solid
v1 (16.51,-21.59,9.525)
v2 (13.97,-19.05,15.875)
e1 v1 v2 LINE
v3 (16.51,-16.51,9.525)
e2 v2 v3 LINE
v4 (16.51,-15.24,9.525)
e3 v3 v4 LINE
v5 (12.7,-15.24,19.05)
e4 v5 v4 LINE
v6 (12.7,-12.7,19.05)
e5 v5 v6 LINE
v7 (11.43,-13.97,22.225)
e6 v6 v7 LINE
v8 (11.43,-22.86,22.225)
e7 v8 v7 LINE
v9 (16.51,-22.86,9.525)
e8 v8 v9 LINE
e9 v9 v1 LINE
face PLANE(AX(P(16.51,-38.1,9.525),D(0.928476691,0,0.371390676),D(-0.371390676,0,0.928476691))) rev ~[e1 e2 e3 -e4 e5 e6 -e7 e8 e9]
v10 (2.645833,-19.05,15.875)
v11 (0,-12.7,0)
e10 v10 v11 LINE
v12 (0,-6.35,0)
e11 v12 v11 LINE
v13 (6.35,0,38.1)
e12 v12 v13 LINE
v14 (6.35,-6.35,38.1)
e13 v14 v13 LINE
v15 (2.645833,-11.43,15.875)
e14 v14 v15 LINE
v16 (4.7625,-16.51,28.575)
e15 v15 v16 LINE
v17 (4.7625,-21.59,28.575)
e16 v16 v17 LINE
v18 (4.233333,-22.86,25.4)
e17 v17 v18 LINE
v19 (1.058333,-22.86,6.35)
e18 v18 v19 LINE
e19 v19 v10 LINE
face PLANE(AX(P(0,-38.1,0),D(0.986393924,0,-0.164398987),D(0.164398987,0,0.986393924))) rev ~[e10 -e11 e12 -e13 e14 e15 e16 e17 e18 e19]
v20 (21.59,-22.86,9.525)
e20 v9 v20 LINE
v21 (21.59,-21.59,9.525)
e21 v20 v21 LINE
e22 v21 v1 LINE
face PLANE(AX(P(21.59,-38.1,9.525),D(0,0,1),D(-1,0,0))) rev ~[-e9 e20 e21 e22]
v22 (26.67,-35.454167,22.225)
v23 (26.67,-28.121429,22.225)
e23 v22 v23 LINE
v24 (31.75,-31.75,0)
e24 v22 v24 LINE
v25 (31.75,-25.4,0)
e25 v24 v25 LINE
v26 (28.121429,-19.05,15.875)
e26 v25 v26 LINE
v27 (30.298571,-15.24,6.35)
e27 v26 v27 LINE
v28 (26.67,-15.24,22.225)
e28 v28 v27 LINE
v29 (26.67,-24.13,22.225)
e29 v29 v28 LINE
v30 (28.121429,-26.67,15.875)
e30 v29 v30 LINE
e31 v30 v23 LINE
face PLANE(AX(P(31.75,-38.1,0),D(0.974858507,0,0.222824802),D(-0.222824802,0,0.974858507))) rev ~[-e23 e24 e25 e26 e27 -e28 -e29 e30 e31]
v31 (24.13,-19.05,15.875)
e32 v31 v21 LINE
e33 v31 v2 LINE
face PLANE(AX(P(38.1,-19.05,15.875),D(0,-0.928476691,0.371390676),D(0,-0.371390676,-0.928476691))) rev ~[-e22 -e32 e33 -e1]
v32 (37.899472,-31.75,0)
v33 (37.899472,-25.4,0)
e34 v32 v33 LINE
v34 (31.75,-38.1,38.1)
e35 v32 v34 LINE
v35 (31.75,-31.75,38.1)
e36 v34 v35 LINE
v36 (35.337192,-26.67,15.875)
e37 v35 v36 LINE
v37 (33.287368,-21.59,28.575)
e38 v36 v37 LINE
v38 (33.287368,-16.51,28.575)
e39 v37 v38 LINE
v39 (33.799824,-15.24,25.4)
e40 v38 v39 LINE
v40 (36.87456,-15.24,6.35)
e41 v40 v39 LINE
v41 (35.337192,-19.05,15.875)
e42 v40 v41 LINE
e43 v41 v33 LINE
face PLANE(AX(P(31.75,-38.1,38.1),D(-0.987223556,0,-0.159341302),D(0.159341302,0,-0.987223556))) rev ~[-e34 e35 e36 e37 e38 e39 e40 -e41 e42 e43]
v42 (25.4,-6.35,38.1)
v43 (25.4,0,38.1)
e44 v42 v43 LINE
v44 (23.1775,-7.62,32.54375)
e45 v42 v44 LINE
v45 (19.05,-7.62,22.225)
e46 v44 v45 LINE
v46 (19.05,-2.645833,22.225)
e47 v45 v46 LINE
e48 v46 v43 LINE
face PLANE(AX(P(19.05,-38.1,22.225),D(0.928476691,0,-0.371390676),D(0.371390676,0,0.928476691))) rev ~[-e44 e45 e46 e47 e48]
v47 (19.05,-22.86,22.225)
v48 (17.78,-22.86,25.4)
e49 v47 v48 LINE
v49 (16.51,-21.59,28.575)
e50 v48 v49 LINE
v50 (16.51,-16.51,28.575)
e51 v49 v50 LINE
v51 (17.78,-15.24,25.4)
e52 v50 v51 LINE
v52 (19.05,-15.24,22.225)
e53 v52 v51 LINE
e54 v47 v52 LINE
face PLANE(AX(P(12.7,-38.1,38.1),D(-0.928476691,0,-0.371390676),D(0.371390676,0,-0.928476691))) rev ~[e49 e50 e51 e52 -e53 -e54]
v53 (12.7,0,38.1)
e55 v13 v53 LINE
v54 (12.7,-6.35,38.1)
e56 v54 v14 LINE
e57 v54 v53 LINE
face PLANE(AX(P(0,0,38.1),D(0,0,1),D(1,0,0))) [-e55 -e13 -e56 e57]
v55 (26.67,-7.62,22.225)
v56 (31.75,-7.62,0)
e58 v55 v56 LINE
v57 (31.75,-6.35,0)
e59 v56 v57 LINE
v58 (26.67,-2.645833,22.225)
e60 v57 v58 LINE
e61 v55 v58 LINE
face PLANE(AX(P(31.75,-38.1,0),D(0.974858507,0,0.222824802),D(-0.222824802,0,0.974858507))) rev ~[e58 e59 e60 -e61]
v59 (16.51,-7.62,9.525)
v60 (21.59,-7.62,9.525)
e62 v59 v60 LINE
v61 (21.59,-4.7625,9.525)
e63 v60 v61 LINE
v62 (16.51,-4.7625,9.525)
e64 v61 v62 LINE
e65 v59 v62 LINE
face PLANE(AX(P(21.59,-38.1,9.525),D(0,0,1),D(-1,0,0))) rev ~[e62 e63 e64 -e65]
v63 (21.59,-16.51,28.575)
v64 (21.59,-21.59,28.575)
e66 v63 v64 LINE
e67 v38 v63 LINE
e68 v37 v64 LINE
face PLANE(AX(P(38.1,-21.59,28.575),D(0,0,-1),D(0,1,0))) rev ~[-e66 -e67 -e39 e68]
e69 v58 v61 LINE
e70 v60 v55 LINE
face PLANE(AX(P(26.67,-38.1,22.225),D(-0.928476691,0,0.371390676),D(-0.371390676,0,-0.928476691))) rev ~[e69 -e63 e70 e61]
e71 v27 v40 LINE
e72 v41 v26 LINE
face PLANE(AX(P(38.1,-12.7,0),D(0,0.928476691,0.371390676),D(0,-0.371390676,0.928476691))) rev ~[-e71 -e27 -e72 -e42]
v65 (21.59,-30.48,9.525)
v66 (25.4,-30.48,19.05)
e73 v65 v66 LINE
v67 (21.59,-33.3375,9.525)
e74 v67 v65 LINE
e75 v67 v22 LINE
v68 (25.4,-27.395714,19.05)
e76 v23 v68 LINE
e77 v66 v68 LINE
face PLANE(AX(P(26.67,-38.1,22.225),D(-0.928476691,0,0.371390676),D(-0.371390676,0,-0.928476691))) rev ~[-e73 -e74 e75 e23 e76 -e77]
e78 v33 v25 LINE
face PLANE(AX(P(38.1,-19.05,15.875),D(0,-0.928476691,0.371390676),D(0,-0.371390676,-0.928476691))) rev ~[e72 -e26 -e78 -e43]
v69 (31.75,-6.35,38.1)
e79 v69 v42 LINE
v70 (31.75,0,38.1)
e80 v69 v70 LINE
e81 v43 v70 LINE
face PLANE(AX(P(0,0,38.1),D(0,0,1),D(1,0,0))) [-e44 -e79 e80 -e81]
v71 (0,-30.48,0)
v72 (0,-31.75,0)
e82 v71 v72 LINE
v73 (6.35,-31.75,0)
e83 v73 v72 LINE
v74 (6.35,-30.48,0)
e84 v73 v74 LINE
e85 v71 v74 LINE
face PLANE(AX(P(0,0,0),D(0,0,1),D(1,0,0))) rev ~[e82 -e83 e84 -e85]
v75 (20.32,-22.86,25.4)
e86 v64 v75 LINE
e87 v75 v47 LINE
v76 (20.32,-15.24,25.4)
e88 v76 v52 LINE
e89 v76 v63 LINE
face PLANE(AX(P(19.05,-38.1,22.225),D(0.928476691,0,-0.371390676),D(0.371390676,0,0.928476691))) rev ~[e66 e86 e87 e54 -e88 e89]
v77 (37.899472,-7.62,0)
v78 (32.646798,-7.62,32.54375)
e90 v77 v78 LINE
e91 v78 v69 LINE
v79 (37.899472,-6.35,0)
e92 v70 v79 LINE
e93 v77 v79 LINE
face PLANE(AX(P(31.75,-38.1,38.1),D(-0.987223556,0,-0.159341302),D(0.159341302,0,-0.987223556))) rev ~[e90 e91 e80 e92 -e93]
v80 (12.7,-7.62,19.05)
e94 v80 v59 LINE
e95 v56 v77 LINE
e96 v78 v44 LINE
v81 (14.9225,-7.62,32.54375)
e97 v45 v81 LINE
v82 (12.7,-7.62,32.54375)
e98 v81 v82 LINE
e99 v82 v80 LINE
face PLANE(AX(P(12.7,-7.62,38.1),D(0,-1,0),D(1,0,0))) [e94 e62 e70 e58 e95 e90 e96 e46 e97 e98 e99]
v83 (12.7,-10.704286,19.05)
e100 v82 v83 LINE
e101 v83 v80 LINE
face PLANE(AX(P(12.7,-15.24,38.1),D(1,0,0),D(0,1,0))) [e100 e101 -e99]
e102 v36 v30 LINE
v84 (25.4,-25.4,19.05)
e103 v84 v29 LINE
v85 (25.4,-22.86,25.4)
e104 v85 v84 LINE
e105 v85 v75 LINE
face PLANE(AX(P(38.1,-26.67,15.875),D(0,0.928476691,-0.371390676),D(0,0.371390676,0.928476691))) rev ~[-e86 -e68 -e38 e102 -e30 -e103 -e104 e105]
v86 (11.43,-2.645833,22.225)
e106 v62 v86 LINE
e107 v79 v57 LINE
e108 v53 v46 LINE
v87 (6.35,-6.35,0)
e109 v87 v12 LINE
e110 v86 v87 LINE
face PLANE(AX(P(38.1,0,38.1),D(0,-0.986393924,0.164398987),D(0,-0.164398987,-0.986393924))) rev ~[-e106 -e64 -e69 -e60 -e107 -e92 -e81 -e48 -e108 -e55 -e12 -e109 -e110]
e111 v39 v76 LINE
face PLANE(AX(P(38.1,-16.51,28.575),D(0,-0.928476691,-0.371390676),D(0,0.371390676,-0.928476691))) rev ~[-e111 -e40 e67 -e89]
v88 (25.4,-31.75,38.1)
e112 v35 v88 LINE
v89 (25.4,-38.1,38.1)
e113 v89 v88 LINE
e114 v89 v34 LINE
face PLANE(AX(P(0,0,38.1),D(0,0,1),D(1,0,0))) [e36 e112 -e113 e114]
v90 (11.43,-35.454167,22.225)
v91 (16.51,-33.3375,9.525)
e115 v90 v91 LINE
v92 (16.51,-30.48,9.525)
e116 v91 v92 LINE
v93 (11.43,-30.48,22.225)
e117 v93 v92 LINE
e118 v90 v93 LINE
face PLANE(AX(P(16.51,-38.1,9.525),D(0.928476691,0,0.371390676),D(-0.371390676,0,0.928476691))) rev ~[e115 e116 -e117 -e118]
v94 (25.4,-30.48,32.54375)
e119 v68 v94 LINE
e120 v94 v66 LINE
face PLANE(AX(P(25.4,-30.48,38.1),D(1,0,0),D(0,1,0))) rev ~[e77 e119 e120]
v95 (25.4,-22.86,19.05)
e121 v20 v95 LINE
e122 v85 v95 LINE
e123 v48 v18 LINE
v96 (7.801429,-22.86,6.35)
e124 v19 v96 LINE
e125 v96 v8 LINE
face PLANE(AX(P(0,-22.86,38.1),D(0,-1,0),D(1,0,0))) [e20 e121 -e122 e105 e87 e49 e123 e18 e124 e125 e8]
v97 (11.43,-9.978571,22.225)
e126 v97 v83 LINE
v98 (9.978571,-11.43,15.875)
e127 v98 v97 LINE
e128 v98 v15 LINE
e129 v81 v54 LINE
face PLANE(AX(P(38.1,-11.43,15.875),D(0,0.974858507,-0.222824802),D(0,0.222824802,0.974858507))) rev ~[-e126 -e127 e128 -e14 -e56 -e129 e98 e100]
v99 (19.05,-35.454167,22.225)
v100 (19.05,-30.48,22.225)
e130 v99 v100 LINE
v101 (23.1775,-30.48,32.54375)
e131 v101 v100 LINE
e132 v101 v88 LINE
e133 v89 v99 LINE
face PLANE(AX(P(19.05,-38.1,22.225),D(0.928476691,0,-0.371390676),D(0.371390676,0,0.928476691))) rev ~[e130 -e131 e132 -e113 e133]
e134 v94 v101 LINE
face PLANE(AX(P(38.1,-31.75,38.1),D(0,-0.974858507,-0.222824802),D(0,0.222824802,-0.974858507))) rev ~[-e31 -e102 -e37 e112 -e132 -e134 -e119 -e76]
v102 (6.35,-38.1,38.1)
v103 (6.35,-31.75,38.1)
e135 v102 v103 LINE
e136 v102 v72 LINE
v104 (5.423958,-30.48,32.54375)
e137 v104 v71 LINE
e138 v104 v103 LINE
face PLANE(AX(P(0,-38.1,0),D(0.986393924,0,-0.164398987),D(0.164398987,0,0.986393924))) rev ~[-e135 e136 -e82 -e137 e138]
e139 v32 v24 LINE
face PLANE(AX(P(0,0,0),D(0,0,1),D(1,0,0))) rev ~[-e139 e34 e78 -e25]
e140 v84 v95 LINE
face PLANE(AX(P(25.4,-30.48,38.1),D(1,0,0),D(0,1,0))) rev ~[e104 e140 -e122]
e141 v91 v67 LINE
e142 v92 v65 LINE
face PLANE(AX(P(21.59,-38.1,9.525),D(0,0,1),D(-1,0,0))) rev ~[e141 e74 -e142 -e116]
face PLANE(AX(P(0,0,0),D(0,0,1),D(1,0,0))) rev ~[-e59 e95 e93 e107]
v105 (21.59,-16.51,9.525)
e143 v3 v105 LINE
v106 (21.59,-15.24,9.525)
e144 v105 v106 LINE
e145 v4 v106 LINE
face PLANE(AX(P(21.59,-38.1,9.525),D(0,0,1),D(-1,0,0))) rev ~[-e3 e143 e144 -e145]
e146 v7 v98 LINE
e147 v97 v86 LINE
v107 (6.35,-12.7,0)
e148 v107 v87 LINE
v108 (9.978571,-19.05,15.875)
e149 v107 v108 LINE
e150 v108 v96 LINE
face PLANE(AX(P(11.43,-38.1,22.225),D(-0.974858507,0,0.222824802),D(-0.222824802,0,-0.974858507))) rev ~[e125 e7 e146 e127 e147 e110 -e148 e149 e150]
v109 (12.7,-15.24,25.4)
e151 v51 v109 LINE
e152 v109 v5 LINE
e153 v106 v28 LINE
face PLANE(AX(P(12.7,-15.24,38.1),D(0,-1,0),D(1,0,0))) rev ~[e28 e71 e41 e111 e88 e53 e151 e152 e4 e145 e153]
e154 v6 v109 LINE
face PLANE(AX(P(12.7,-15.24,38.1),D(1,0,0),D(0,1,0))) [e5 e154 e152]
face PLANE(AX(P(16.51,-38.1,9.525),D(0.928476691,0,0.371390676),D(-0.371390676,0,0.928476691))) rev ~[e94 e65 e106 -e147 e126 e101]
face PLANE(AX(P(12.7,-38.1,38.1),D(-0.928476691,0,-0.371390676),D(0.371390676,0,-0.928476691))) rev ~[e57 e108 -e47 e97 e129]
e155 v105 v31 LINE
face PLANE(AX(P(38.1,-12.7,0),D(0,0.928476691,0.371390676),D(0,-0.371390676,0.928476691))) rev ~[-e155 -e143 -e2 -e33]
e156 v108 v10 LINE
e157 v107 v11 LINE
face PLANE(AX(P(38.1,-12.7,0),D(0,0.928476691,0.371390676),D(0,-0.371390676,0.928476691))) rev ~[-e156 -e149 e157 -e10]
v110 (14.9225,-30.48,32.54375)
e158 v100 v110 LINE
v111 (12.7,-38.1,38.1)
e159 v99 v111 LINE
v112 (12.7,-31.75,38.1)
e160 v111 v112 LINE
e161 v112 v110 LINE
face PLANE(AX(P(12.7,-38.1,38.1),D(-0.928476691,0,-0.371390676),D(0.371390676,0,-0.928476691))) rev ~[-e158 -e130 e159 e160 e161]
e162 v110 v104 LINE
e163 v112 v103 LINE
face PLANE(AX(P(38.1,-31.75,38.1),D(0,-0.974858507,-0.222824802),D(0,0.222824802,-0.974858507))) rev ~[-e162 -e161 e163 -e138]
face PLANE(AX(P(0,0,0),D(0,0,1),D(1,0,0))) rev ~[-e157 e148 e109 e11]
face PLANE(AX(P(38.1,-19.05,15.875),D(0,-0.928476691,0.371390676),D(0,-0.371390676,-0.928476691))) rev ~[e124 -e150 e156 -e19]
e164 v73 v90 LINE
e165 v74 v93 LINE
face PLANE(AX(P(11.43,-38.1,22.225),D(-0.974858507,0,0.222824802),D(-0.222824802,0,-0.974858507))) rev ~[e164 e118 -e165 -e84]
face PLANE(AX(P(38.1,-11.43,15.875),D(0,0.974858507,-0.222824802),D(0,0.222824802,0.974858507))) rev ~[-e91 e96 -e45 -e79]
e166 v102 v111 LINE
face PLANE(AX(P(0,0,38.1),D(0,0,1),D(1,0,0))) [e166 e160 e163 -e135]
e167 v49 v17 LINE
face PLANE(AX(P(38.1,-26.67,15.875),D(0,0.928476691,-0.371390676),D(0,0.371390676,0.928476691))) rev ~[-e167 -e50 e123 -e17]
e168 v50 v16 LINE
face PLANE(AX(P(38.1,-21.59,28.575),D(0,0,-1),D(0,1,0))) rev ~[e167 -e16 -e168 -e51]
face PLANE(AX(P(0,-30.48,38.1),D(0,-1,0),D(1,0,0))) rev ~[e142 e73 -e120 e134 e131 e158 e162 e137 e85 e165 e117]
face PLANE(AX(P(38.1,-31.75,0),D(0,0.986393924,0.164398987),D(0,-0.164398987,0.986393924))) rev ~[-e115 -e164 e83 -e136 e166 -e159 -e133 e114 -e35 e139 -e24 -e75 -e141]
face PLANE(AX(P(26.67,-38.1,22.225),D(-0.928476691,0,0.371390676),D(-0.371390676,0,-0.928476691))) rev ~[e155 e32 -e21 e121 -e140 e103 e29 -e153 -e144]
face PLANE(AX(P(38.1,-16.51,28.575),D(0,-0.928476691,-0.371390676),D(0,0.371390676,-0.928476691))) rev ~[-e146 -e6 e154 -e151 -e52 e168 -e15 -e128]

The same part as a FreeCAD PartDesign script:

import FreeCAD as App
import Part
import Sketcher
Q = App.Units.Quantity


def add_polygon(sketch, points):
    """Adds a closed chain of lines whose ends are joined by coincident constraints."""
    first, n = sketch.GeometryCount, len(points)
    for a, b in zip(points, points[1:] + points[:1]):
        sketch.addGeometry(Part.LineSegment(App.Vector(*a, 0), App.Vector(*b, 0)), False)
    for i in range(n):
        sketch.addConstraint(Sketcher.Constraint("Coincident", first + i, 2, first + (i + 1) % n, 1))

doc = App.newDocument("Part")
body = doc.addObject("PartDesign::Body", "Body")

sketch1 = doc.addObject("Sketcher::SketchObject", "Sketch")
body.addObject(sketch1)
sketch1.AttachmentSupport = (doc.XZ_Plane, [""])
sketch1.MapMode = "FlatFace"
add_polygon(sketch1, [(0, 38), (0, 0), (38, 0), (38, 38)])
sketch1.addConstraint([
    Sketcher.Constraint("Vertical", 0),
    Sketcher.Constraint("Horizontal", 1),
    Sketcher.Constraint("Vertical", 2),
    Sketcher.Constraint("Horizontal", 3),
    Sketcher.Constraint("Coincident", 0, 2, -1, 1),
    Sketcher.Constraint("Equal", 3, 0),
    Sketcher.Constraint("DistanceX", 1, 1, 1, 2, Q("1.5 in")),
])
pad1 = doc.addObject("PartDesign::Pad", "Pad")
body.addObject(pad1)
pad1.Profile = sketch1
pad1.Length = Q("1.5 in")

sketch2 = doc.addObject("Sketcher::SketchObject", "Sketch001")
body.addObject(sketch2)
sketch2.AttachmentSupport = (doc.YZ_Plane, [""])
sketch2.MapMode = "FlatFace"
sketch2.AttachmentOffset = App.Placement(App.Vector(0, 0, 1.5 * 25.4), App.Rotation())
add_polygon(sketch2, [(-6, 38), (-32, 38), (-27, 16), (-22, 29), (-17, 29), (-11, 16)])
add_polygon(sketch2, [(-32, 0), (-38, 38), (-38, 0)])
add_polygon(sketch2, [(-19, 16), (-25, 0), (-13, 0)])
add_polygon(sketch2, [(0, 0), (0, 38), (-6, 0)])
sketch2.addConstraint([
    Sketcher.Constraint("Horizontal", 0),
    Sketcher.Constraint("Horizontal", 3),
    Sketcher.Constraint("Vertical", 7),
    Sketcher.Constraint("Horizontal", 8),
    Sketcher.Constraint("Horizontal", 10),
    Sketcher.Constraint("Vertical", 12),
    Sketcher.Constraint("Horizontal", 14),
    Sketcher.Constraint("Coincident", 14, 2, -1, 1),
    Sketcher.Constraint("PointOnObject", 7, 2, -1),
    Sketcher.Constraint("PointOnObject", 9, 2, -1),
    Sketcher.Constraint("Parallel", 2, 9),
    Sketcher.Constraint("Parallel", 4, 11),
    Sketcher.Constraint("Horizontal", 1, 2, 4, 2),
    Sketcher.Constraint("Horizontal", 5, 2, 6, 2),
    Sketcher.Constraint("Horizontal", 4, 2, 11, 2),
    Sketcher.Constraint("Horizontal", 6, 2, 12, 2),
    Sketcher.Constraint("Vertical", 0, 2, 8, 2),
    Sketcher.Constraint("Vertical", 5, 2, 13, 2),
    Sketcher.Constraint("Equal", 8, 14),
    Sketcher.Constraint("Equal", 2, 4),
    Sketcher.Constraint("Equal", 1, 5),
    Sketcher.Constraint("DistanceX", 0, 2, 0, 1, Q("1 in")),
    Sketcher.Constraint("DistanceX", 3, 1, 3, 2, Q("0.2 in")),
    Sketcher.Constraint("DistanceX", 10, 1, 10, 2, Q("0.5 in")),
    Sketcher.Constraint("DistanceY", 7, 2, 7, 1, Q("1.5 in")),
    Sketcher.Constraint("DistanceX", 9, 2, -1, 1, Q("1 in")),
    Sketcher.Constraint("DistanceX", 7, 2, 10, 2, Q("1 in")),
    Sketcher.Constraint("DistanceX", 0, 2, 1, 2, Q("0.2 in")),
    Sketcher.Constraint("DistanceY", 1, 2, 2, 2, Q("0.5 in")),
])
pocket1 = doc.addObject("PartDesign::Pocket", "Pocket")
body.addObject(pocket1)
pocket1.Profile = sketch2
pocket1.Length = Q("1.5 in")

sketch3 = doc.addObject("Sketcher::SketchObject", "Sketch002")
body.addObject(sketch3)
sketch3.AttachmentSupport = (doc.XZ_Plane, [""])
sketch3.MapMode = "FlatFace"
sketch3.AttachmentOffset = App.Placement(App.Vector(0, 0, 1.5 * 25.4), App.Rotation())
add_polygon(sketch3, [(0, 0), (6.35, 38.1), (0, 38.1)])
add_polygon(sketch3, [(25.4, 38.1), (12.7, 38.1), (19.05, 22.23)])
add_polygon(sketch3, [(11.43, 22.23), (6.35, 0), (31.75, 0), (26.67, 22.23), (21.59, 9.53), (16.51, 9.53)])
add_polygon(sketch3, [(38.1, 38.1), (31.75, 38.1), (37.9, 0), (38.1, 0)])
sketch3.addConstraint([
    Sketcher.Constraint("Horizontal", 1),
    Sketcher.Constraint("Vertical", 2),
    Sketcher.Constraint("Horizontal", 3),
    Sketcher.Constraint("Horizontal", 7),
    Sketcher.Constraint("Horizontal", 10),
    Sketcher.Constraint("Horizontal", 12),
    Sketcher.Constraint("Horizontal", 14),
    Sketcher.Constraint("Vertical", 15),
    Sketcher.Constraint("Coincident", 2, 2, -1, 1),
    Sketcher.Constraint("PointOnObject", 6, 2, -1),
    Sketcher.Constraint("PointOnObject", 13, 2, -1),
    Sketcher.Constraint("Parallel", 5, 9),
    Sketcher.Constraint("Parallel", 4, 11),
    Sketcher.Constraint("Horizontal", 1, 2, 3, 2),
    Sketcher.Constraint("Horizontal", 4, 2, 8, 2),
    Sketcher.Constraint("Horizontal", 8, 2, 11, 2),
    Sketcher.Constraint("Horizontal", 5, 2, 12, 2),
    Sketcher.Constraint("Vertical", 0, 2, 6, 2),
    Sketcher.Constraint("Vertical", 7, 2, 12, 2),
    Sketcher.Constraint("Equal", 1, 12),
    Sketcher.Constraint("Equal", 4, 5),
    Sketcher.Constraint("Equal", 6, 8),
    Sketcher.Constraint("DistanceX", 7, 1, 7, 2, Q("1 in")),
    Sketcher.Constraint("DistanceX", 3, 2, 3, 1, Q("0.5 in")),
    Sketcher.Constraint("DistanceX", 10, 2, 10, 1, Q("0.2 in")),
    Sketcher.Constraint("DistanceY", 2, 2, 2, 1, Q("1.5 in")),
    Sketcher.Constraint("DistanceX", -1, 1, 5, 2, Q("1 in")),
    Sketcher.Constraint("DistanceX", 3, 2, 15, 2, Q("1 in")),
    Sketcher.Constraint("DistanceX", 4, 2, 8, 2, Q("0.3 in")),
    Sketcher.Constraint("DistanceY", 9, 2, 4, 2, Q("0.5 in")),
    Sketcher.Constraint("DistanceX", 14, 1, 14, 2, 0.200528),
])
pocket2 = doc.addObject("PartDesign::Pocket", "Pocket001")
body.addObject(pocket2)
pocket2.Profile = sketch3
pocket2.Length = Q("1.5 in")

sketch4 = doc.addObject("Sketcher::SketchObject", "Sketch003")
body.addObject(sketch4)
sketch4.AttachmentSupport = (doc.XY_Plane, [""])
sketch4.MapMode = "FlatFace"
sketch4.AttachmentOffset = App.Placement(App.Vector(0, 0, 1.5 * 25.4), App.Rotation())
add_polygon(sketch4, [(13, -8), (13, -15), (38, -15), (38, -8)])
add_polygon(sketch4, [(0, -23), (0, -30), (25, -30), (25, -23)])
sketch4.addConstraint([
    Sketcher.Constraint("Vertical", 0),
    Sketcher.Constraint("Horizontal", 1),
    Sketcher.Constraint("Vertical", 2),
    Sketcher.Constraint("Horizontal", 3),
    Sketcher.Constraint("Vertical", 4),
    Sketcher.Constraint("Horizontal", 5),
    Sketcher.Constraint("Vertical", 6),
    Sketcher.Constraint("Horizontal", 7),
    Sketcher.Constraint("PointOnObject", 4, 2, -2),
    Sketcher.Constraint("Equal", 3, 5),
    Sketcher.Constraint("Equal", 2, 4),
    Sketcher.Constraint("DistanceX", 1, 1, 1, 2, Q("1 in")),
    Sketcher.Constraint("DistanceY", 0, 2, 0, 1, Q("0.3 in")),
    Sketcher.Constraint("DistanceX", -1, 1, 0, 2, Q("0.5 in")),
    Sketcher.Constraint("DistanceY", 0, 2, -1, 1, Q("0.6 in")),
    Sketcher.Constraint("DistanceY", 4, 2, -1, 1, Q("1.2 in")),
])
pocket3 = doc.addObject("PartDesign::Pocket", "Pocket002")
body.addObject(pocket3)
pocket3.Profile = sketch4
pocket3.Length = Q("1.5 in")

doc.recompute()
